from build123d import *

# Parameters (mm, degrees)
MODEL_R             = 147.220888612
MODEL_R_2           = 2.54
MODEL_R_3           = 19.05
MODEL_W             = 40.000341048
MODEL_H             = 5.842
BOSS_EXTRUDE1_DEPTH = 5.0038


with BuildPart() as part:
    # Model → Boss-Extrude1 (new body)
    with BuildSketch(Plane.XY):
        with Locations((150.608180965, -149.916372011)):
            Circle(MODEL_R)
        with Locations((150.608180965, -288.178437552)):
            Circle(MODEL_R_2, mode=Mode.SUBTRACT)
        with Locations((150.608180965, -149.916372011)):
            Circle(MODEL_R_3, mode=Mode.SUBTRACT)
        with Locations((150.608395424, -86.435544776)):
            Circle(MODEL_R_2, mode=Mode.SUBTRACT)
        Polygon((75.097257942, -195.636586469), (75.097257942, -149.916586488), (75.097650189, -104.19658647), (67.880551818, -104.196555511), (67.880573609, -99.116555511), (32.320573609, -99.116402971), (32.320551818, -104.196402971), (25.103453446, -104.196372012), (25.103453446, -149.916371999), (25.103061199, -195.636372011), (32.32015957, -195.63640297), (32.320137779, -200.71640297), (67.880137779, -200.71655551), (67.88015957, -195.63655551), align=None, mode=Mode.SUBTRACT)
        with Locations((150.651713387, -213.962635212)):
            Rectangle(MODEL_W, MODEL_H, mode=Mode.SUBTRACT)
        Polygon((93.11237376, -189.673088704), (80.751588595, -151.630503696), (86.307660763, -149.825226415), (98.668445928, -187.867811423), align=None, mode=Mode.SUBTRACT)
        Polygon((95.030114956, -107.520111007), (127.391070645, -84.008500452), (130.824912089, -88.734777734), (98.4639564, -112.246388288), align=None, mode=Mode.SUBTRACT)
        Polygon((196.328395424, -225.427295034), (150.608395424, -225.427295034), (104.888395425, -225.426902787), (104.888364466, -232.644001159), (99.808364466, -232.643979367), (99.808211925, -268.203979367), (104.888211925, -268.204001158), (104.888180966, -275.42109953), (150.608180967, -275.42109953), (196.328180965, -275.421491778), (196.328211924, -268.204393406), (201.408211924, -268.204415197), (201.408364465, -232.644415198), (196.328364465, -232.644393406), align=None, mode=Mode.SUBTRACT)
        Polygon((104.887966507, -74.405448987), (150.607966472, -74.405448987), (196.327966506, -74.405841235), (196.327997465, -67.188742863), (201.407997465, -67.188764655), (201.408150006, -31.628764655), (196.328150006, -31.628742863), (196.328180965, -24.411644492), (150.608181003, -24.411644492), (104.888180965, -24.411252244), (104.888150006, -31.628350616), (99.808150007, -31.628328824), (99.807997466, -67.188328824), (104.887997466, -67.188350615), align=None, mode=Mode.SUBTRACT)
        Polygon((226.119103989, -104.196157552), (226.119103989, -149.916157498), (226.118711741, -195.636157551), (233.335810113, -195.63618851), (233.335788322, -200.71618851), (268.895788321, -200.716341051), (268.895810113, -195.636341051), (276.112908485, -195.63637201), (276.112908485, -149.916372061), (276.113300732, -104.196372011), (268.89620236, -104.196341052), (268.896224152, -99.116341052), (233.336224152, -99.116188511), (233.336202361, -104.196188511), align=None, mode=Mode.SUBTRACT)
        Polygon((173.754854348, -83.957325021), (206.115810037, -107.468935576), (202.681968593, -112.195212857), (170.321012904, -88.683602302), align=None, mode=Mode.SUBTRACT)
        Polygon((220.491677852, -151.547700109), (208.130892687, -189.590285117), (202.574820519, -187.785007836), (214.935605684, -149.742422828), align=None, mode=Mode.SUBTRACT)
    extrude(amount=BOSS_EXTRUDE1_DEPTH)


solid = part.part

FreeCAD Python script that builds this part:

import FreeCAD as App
import Part
import Sketcher
from FreeCAD import Vector
Q = App.Units.Quantity


def add_polygon(sketch, points):
    """Adds a closed chain of lines whose ends are joined by coincident constraints."""
    first, n = sketch.GeometryCount, len(points)
    for a, b in zip(points, points[1:] + points[:1]):
        sketch.addGeometry(Part.LineSegment(App.Vector(*a, 0), App.Vector(*b, 0)), False)
    for i in range(n):
        sketch.addConstraint(Sketcher.Constraint("Coincident", first + i, 2, first + (i + 1) % n, 1))

doc = App.newDocument("Part")
params = doc.addObject("Spreadsheet::Sheet", "Params")
for row, (alias, value) in enumerate([
    ("sketch1_diameter", "0.2 in"),
    ("sketch1_diameter2", "1.5 in"),
    ("sketch1_width", "1.8 in"),
    ("sketch1_length", "0.2 in"),
    ("sketch1_length2", "1.4 in"),
    ("pad1_length", "0.197 in"),
], start=1):
    params.set(f"A{row}", alias)
    params.set(f"B{row}", "=" + value)
    params.setAlias(f"B{row}", alias)

body = doc.addObject("PartDesign::Body", "Body")

sketch1 = body.newObject("Sketcher::SketchObject", "Sketch")
sketch1.AttachmentSupport = (doc.getObject("XY_Plane"), [""])
sketch1.MapMode = "FlatFace"
sketch1.addGeometry(Part.Circle(Vector(150.6, -149.9, 0), Vector(0, 0, 1), 147.2), False)
sketch1.addGeometry(Part.Circle(Vector(150.6, -288.2, 0), Vector(0, 0, 1), 2.5), False)
add_polygon(sketch1, [(98.7, -187.9), (93.1, -189.7), (80.8, -151.6), (86.3, -149.8)])
add_polygon(sketch1, [(150.6, -225.4), (196.3, -225.4), (196.3, -232.6), (201.4, -232.6), (201.4, -268.2), (196.3, -268.2), (196.3, -275.4), (150.6, -275.4), (104.9, -275.4), (104.9, -268.2), (99.8, -268.2), (99.8, -232.6), (104.9, -232.6), (104.9, -225.4)])
add_polygon(sketch1, [(170.7, -216.9), (130.7, -216.9), (130.7, -211), (170.7, -211)])
add_polygon(sketch1, [(214.9, -149.7), (220.5, -151.5), (208.1, -189.6), (202.6, -187.8)])
add_polygon(sketch1, [(75.1, -149.9), (75.1, -195.6), (67.9, -195.6), (67.9, -200.7), (32.3, -200.7), (32.3, -195.6), (25.1, -195.6), (25.1, -149.9), (25.1, -104.2), (32.3, -104.2), (32.3, -99.1), (67.9, -99.1), (67.9, -104.2), (75.1, -104.2)])
sketch1.addGeometry(Part.Circle(Vector(150.6, -149.9, 0), Vector(0, 0, 1), 19.1), False)
add_polygon(sketch1, [(98.5, -112.2), (95, -107.5), (127.4, -84), (130.8, -88.7)])
add_polygon(sketch1, [(150.6, -74.4), (104.9, -74.4), (104.9, -67.2), (99.8, -67.2), (99.8, -31.6), (104.9, -31.6), (104.9, -24.4), (150.6, -24.4), (196.3, -24.4), (196.3, -31.6), (201.4, -31.6), (201.4, -67.2), (196.3, -67.2), (196.3, -74.4)])
add_polygon(sketch1, [(170.3, -88.7), (173.8, -84), (206.1, -107.5), (202.7, -112.2)])
add_polygon(sketch1, [(226.1, -149.9), (226.1, -104.2), (233.3, -104.2), (233.3, -99.1), (268.9, -99.1), (268.9, -104.2), (276.1, -104.2), (276.1, -149.9), (276.1, -195.6), (268.9, -195.6), (268.9, -200.7), (233.3, -200.7), (233.3, -195.6), (226.1, -195.6)])
sketch1.addGeometry(Part.Circle(Vector(150.6, -86.4, 0), Vector(0, 0, 1), 2.5), False)
sketch1.addConstraint(Sketcher.Constraint("Horizontal", 6))
sketch1.addConstraint(Sketcher.Constraint("Horizontal", 13))
sketch1.addConstraint(Sketcher.Constraint("Horizontal", 20))
sketch1.addConstraint(Sketcher.Constraint("Vertical", 21))
sketch1.addConstraint(Sketcher.Constraint("Horizontal", 22))
sketch1.addConstraint(Sketcher.Constraint("Vertical", 23))
sketch1.addConstraint(Sketcher.Constraint("Vertical", 28))
sketch1.addConstraint(Sketcher.Constraint("Vertical", 35))
sketch1.addConstraint(Sketcher.Constraint("Horizontal", 47))
sketch1.addConstraint(Sketcher.Constraint("Horizontal", 54))
sketch1.addConstraint(Sketcher.Constraint("Vertical", 65))
sketch1.addConstraint(Sketcher.Constraint("Vertical", 72))
sketch1.addConstraint(Sketcher.Constraint("Coincident", 42, 3, 0, 3))
sketch1.addConstraint(Sketcher.Constraint("Equal", 1, 79))
sketch1.addConstraint(Sketcher.Constraint("Perpendicular", 2, 3))
sketch1.addConstraint(Sketcher.Constraint("Perpendicular", 3, 4))
sketch1.addConstraint(Sketcher.Constraint("Perpendicular", 4, 5))
sketch1.addConstraint(Sketcher.Constraint("Perpendicular", 7, 8))
sketch1.addConstraint(Sketcher.Constraint("Perpendicular", 8, 9))
sketch1.addConstraint(Sketcher.Constraint("Perpendicular", 9, 10))
sketch1.addConstraint(Sketcher.Constraint("Perpendicular", 10, 11))
sketch1.addConstraint(Sketcher.Constraint("Parallel", 11, 14))
sketch1.addConstraint(Sketcher.Constraint("Perpendicular", 14, 15))
sketch1.addConstraint(Sketcher.Constraint("Perpendicular", 15, 16))
sketch1.addConstraint(Sketcher.Constraint("Perpendicular", 16, 17))
sketch1.addConstraint(Sketcher.Constraint("Perpendicular", 17, 18))
sketch1.addConstraint(Sketcher.Constraint("Parallel", 12, 19))
sketch1.addConstraint(Sketcher.Constraint("Perpendicular", 24, 25))
sketch1.addConstraint(Sketcher.Constraint("Perpendicular", 25, 26))
sketch1.addConstraint(Sketcher.Constraint("Perpendicular", 26, 27))
sketch1.addConstraint(Sketcher.Constraint("Perpendicular", 18, 29))
sketch1.addConstraint(Sketcher.Constraint("Perpendicular", 29, 30))
sketch1.addConstraint(Sketcher.Constraint("Perpendicular", 30, 31))
sketch1.addConstraint(Sketcher.Constraint("Perpendicular", 31, 32))
sketch1.addConstraint(Sketcher.Constraint("Perpendicular", 32, 33))
sketch1.addConstraint(Sketcher.Constraint("Perpendicular", 19, 34))
sketch1.addConstraint(Sketcher.Constraint("Parallel", 33, 36))
sketch1.addConstraint(Sketcher.Constraint("Perpendicular", 36, 37))
sketch1.addConstraint(Sketcher.Constraint("Perpendicular", 37, 38))
sketch1.addConstraint(Sketcher.Constraint("Perpendicular", 38, 39))
sketch1.addConstraint(Sketcher.Constraint("Perpendicular", 39, 40))
sketch1.addConstraint(Sketcher.Constraint("Parallel", 34, 41))
sketch1.addConstraint(Sketcher.Constraint("Perpendicular", 43, 44))
sketch1.addConstraint(Sketcher.Constraint("Perpendicular", 44, 45))
sketch1.addConstraint(Sketcher.Constraint("Perpendicular", 45, 46))
sketch1.addConstraint(Sketcher.Constraint("Perpendicular", 40, 48))
sketch1.addConstraint(Sketcher.Constraint("Perpendicular", 48, 49))
sketch1.addConstraint(Sketcher.Constraint("Perpendicular", 49, 50))
sketch1.addConstraint(Sketcher.Constraint("Perpendicular", 50, 51))
sketch1.addConstraint(Sketcher.Constraint("Perpendicular", 51, 52))
sketch1.addConstraint(Sketcher.Constraint("Perpendicular", 41, 53))
sketch1.addConstraint(Sketcher.Constraint("Parallel", 52, 55))
sketch1.addConstraint(Sketcher.Constraint("Perpendicular", 55, 56))
sketch1.addConstraint(Sketcher.Constraint("Perpendicular", 56, 57))
sketch1.addConstraint(Sketcher.Constraint("Perpendicular", 57, 58))
sketch1.addConstraint(Sketcher.Constraint("Perpendicular", 58, 59))
sketch1.addConstraint(Sketcher.Constraint("Parallel", 53, 60))
sketch1.addConstraint(Sketcher.Constraint("Perpendicular", 61, 62))
sketch1.addConstraint(Sketcher.Constraint("Perpendicular", 62, 63))
sketch1.addConstraint(Sketcher.Constraint("Perpendicular", 63, 64))
sketch1.addConstraint(Sketcher.Constraint("Perpendicular", 59, 66))
sketch1.addConstraint(Sketcher.Constraint("Perpendicular", 66, 67))
sketch1.addConstraint(Sketcher.Constraint("Perpendicular", 67, 68))
sketch1.addConstraint(Sketcher.Constraint("Perpendicular", 68, 69))
sketch1.addConstraint(Sketcher.Constraint("Perpendicular", 69, 70))
sketch1.addConstraint(Sketcher.Constraint("Perpendicular", 60, 71))
sketch1.addConstraint(Sketcher.Constraint("Parallel", 70, 73))
sketch1.addConstraint(Sketcher.Constraint("Perpendicular", 73, 74))
sketch1.addConstraint(Sketcher.Constraint("Perpendicular", 74, 75))
sketch1.addConstraint(Sketcher.Constraint("Perpendicular", 75, 76))
sketch1.addConstraint(Sketcher.Constraint("Perpendicular", 76, 77))
sketch1.addConstraint(Sketcher.Constraint("Parallel", 71, 78))
sketch1.addConstraint(Sketcher.Constraint("Horizontal", 42, 3, 34, 2))
sketch1.addConstraint(Sketcher.Constraint("Horizontal", 35, 2, 70, 2))
sketch1.addConstraint(Sketcher.Constraint("Horizontal", 34, 2, 71, 2))
sketch1.addConstraint(Sketcher.Constraint("Horizontal", 33, 2, 72, 2))
sketch1.addConstraint(Sketcher.Constraint("Vertical", 0, 3, 1, 3))
sketch1.addConstraint(Sketcher.Constraint("Vertical", 42, 3, 12, 2))
sketch1.addConstraint(Sketcher.Constraint("Vertical", 79, 3, 19, 2))
sketch1.addConstraint(Sketcher.Constraint("Vertical", 13, 2, 52, 2))
sketch1.addConstraint(Sketcher.Constraint("Vertical", 12, 2, 53, 2))
sketch1.addConstraint(Sketcher.Constraint("Vertical", 11, 2, 54, 2))
sketch1.addConstraint(Sketcher.Constraint("Equal", 6, 13))
sketch1.addConstraint(Sketcher.Constraint("Equal", 13, 47))
sketch1.addConstraint(Sketcher.Constraint("Equal", 47, 54))
sketch1.addConstraint(Sketcher.Constraint("Equal", 54, 28))
sketch1.addConstraint(Sketcher.Constraint("Equal", 28, 35))
sketch1.addConstraint(Sketcher.Constraint("Equal", 35, 65))
sketch1.addConstraint(Sketcher.Constraint("Equal", 65, 72))
sketch1.addConstraint(Sketcher.Constraint("Equal", 8, 10))
sketch1.addConstraint(Sketcher.Constraint("Equal", 7, 11))
sketch1.addConstraint(Sketcher.Constraint("Equal", 11, 14))
sketch1.addConstraint(Sketcher.Constraint("Equal", 10, 15))
sketch1.addConstraint(Sketcher.Constraint("Equal", 9, 16))
sketch1.addConstraint(Sketcher.Constraint("Equal", 15, 17))
sketch1.addConstraint(Sketcher.Constraint("Equal", 4, 24))
sketch1.addConstraint(Sketcher.Constraint("Equal", 5, 25))
sketch1.addConstraint(Sketcher.Constraint("Equal", 18, 29))
sketch1.addConstraint(Sketcher.Constraint("Equal", 17, 30))
sketch1.addConstraint(Sketcher.Constraint("Equal", 16, 31))
sketch1.addConstraint(Sketcher.Constraint("Equal", 30, 32))
sketch1.addConstraint(Sketcher.Constraint("Equal", 29, 33))
sketch1.addConstraint(Sketcher.Constraint("Equal", 33, 36))
sketch1.addConstraint(Sketcher.Constraint("Equal", 32, 37))
sketch1.addConstraint(Sketcher.Constraint("Equal", 31, 38))
sketch1.addConstraint(Sketcher.Constraint("Equal", 37, 39))
sketch1.addConstraint(Sketcher.Constraint("Equal", 26, 43))
sketch1.addConstraint(Sketcher.Constraint("Equal", 27, 44))
sketch1.addConstraint(Sketcher.Constraint("Equal", 40, 48))
sketch1.addConstraint(Sketcher.Constraint("Equal", 39, 49))
sketch1.addConstraint(Sketcher.Constraint("Equal", 38, 50))
sketch1.addConstraint(Sketcher.Constraint("Equal", 49, 51))
sketch1.addConstraint(Sketcher.Constraint("Equal", 48, 52))
sketch1.addConstraint(Sketcher.Constraint("Equal", 52, 55))
sketch1.addConstraint(Sketcher.Constraint("Equal", 51, 56))
sketch1.addConstraint(Sketcher.Constraint("Equal", 50, 57))
sketch1.addConstraint(Sketcher.Constraint("Equal", 56, 58))
sketch1.addConstraint(Sketcher.Constraint("Equal", 45, 61))
sketch1.addConstraint(Sketcher.Constraint("Equal", 46, 62))
sketch1.addConstraint(Sketcher.Constraint("Equal", 59, 66))
sketch1.addConstraint(Sketcher.Constraint("Equal", 58, 67))
sketch1.addConstraint(Sketcher.Constraint("Equal", 57, 68))
sketch1.addConstraint(Sketcher.Constraint("Equal", 67, 69))
sketch1.addConstraint(Sketcher.Constraint("Equal", 66, 70))
sketch1.addConstraint(Sketcher.Constraint("Equal", 70, 73))
sketch1.addConstraint(Sketcher.Constraint("Equal", 69, 74))
sketch1.addConstraint(Sketcher.Constraint("Equal", 68, 75))
sketch1.addConstraint(Sketcher.Constraint("Equal", 74, 76))
sketch1.addConstraint(Sketcher.Constraint("Diameter", 1, Q("0.2 in")))
sketch1.addConstraint(Sketcher.Constraint("Diameter", 42, Q("1.5 in")))
sketch1.addConstraint(Sketcher.Constraint("DistanceX", 6, 1, 6, 2, Q("1.8 in")))
sketch1.addConstraint(Sketcher.Constraint("Angle", 2, Q("-162 deg")))
sketch1.addConstraint(Sketcher.Constraint("Angle", 24, Q("-18 deg")))
sketch1.addConstraint(Sketcher.Constraint("Angle", 43, Q("126 deg")))
sketch1.addConstraint(Sketcher.Constraint("Angle", 61, Q("54 deg")))
sketch1.addConstraint(Sketcher.Constraint("Distance", 8, Q("0.2 in")))
sketch1.addConstraint(Sketcher.Constraint("Distance", 9, Q("1.4 in")))
sketch1.addConstraint(Sketcher.Constraint("DistanceY", 21, 1, 21, 2, Q("0.23 in")))
sketch1.addConstraint(Sketcher.Constraint("Distance", 2, Q("0.23 in")))
sketch1.addConstraint(Sketcher.Constraint("Diameter", 0, 294.441777))
sketch1.addConstraint(Sketcher.Constraint("Distance", 7, 7.217098))
sketch1.addConstraint(Sketcher.Constraint("DistanceX", 20, 2, 20, 1, 40.000341))
sketch1.addConstraint(Sketcher.Constraint("DistanceY", 12, 2, -1, 1, 275.4211))
sketch1.addConstraint(Sketcher.Constraint("DistanceY", 24, 2, -1, 1, 151.5477))
sketch1.addConstraint(Sketcher.Constraint("DistanceY", 44, 2, -1, 1, 84.0085))
sketch1.addConstraint(Sketcher.Constraint("DistanceX", -1, 1, 70, 2, 276.113301))
sketch1.addConstraint(Sketcher.Constraint("Distance", 3, 40.000341))
sketch1.addConstraint(Sketcher.Constraint("DistanceX", -1, 1, 0, 3, 150.608181))
sketch1.addConstraint(Sketcher.Constraint("DistanceY", 2, 2, -1, 1, 189.673089))
sketch1.addConstraint(Sketcher.Constraint("DistanceX", -1, 1, 3, 2, 80.751589))
sketch1.addConstraint(Sketcher.Constraint("DistanceX", -1, 1, 9, 2, 201.408212))
sketch1.addConstraint(Sketcher.Constraint("DistanceY", 11, 2, -1, 1, 275.421492))
sketch1.addConstraint(Sketcher.Constraint("DistanceX", -1, 1, 26, 2, 202.574821))
sketch1.addConstraint(Sketcher.Constraint("DistanceX", -1, 1, 29, 2, 67.88016))
sketch1.addConstraint(Sketcher.Constraint("DistanceY", 34, 2, -1, 1, 149.916372))
sketch1.addConstraint(Sketcher.Constraint("DistanceX", -1, 1, 44, 2, 127.391071))
sketch1.addConstraint(Sketcher.Constraint("DistanceY", 47, 2, -1, 1, 74.405449))
sketch1.addConstraint(Sketcher.Constraint("DistanceX", -1, 1, 62, 2, 206.11581))
sketch1.addConstraint(Sketcher.Constraint("DistanceY", 1, 3, -1, 1, 288.178438))
sketch1.addConstraint(Sketcher.Constraint("DistanceY", 79, 3, -1, 1, 86.435545))
sketch1.addConstraint(Sketcher.Constraint("DistanceX", -1, 1, 20, 2, 130.651543))
sketch1.addConstraint(Sketcher.Constraint("DistanceY", 20, 2, -1, 1, 216.883635))
sketch1.addConstraint(Sketcher.Constraint("DistanceY", 61, 2, -1, 1, 83.957325))
sketch1.setExpression("Constraints[204]", "Params.sketch1_diameter")
sketch1.setExpression("Constraints[205]", "Params.sketch1_diameter2")
sketch1.setExpression("Constraints[206]", "Params.sketch1_width")
sketch1.setExpression("Constraints[211]", "Params.sketch1_length")
sketch1.setExpression("Constraints[212]", "Params.sketch1_length2")
pad1 = body.newObject("PartDesign::Pad", "Pad")
pad1.Profile = sketch1
pad1.setExpression("Length", "Params.pad1_length")

doc.recompute()
